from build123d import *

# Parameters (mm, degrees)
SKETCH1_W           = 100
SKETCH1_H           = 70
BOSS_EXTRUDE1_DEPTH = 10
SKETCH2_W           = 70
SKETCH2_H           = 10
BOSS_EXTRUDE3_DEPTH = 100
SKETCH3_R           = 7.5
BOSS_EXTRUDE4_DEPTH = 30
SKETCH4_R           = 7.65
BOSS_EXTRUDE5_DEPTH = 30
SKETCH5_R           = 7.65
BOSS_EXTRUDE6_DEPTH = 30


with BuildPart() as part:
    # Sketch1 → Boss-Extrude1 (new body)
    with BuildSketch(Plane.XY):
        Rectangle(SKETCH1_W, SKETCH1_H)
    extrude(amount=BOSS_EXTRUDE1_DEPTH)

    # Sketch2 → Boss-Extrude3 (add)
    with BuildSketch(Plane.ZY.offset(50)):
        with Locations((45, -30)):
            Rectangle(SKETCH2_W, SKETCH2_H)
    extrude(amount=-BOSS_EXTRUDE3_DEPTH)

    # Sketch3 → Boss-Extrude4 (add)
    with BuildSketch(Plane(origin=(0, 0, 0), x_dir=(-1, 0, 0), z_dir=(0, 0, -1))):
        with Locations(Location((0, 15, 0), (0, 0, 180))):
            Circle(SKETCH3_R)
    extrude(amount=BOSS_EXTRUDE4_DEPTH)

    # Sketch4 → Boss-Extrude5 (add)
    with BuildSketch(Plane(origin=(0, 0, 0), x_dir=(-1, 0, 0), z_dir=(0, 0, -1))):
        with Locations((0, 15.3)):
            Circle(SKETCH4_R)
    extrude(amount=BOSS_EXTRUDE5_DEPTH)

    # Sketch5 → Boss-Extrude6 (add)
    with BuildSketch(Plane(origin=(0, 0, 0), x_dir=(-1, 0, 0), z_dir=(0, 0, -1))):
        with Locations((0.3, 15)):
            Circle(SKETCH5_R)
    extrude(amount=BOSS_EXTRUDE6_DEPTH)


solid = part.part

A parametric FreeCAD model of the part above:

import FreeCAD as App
import Part
import Sketcher
Q = App.Units.Quantity


def add_polygon(sketch, points):
    """Adds a closed chain of lines whose ends are joined by coincident constraints."""
    first, n = sketch.GeometryCount, len(points)
    for a, b in zip(points, points[1:] + points[:1]):
        sketch.addGeometry(Part.LineSegment(App.Vector(*a, 0), App.Vector(*b, 0)), False)
    for i in range(n):
        sketch.addConstraint(Sketcher.Constraint("Coincident", first + i, 2, first + (i + 1) % n, 1))

doc = App.newDocument("Part")
body = doc.addObject("PartDesign::Body", "Body")

sketch1 = body.newObject("Sketcher::SketchObject", "Sketch")
sketch1.AttachmentSupport = (doc.getObject("XY_Plane"), [""])
sketch1.MapMode = "FlatFace"
add_polygon(sketch1, [(-50, 35), (-50, -35), (50, -35), (50, 35)])
sketch1.addConstraint(Sketcher.Constraint("Vertical", 0))
sketch1.addConstraint(Sketcher.Constraint("Horizontal", 1))
sketch1.addConstraint(Sketcher.Constraint("Vertical", 2))
sketch1.addConstraint(Sketcher.Constraint("Horizontal", 3))
sketch1.addConstraint(Sketcher.Constraint("Symmetric", 0, 2, 2, 2, -1, 1))
sketch1.addConstraint(Sketcher.Constraint("DistanceX", 1, 1, 1, 2, Q("100 mm")))
sketch1.addConstraint(Sketcher.Constraint("DistanceY", 0, 2, 0, 1, Q("70 mm")))
pad1 = body.newObject("PartDesign::Pad", "Pad")
pad1.Profile = sketch1
pad1.Length = 10

sketch2 = body.newObject("Sketcher::SketchObject", "Sketch001")
sketch2.AttachmentSupport = (doc.getObject("YZ_Plane"), [""])
sketch2.MapMode = "FlatFace"
sketch2.AttachmentOffset = App.Placement(App.Vector(0, 0, -50), App.Rotation())
add_polygon(sketch2, [(-25, 10), (-35, 10), (-35, 80), (-25, 80)])
sketch2.addConstraint(Sketcher.Constraint("Horizontal", 0))
sketch2.addConstraint(Sketcher.Constraint("Vertical", 1))
sketch2.addConstraint(Sketcher.Constraint("Horizontal", 2))
sketch2.addConstraint(Sketcher.Constraint("Vertical", 3))
sketch2.addConstraint(Sketcher.Constraint("DistanceX", 0, 2, 0, 1, Q("10 mm")))
sketch2.addConstraint(Sketcher.Constraint("DistanceY", 1, 1, 1, 2, Q("70 mm")))
sketch2.addConstraint(Sketcher.Constraint("DistanceX", 0, 2, -1, 1, Q("35 mm")))
sketch2.addConstraint(Sketcher.Constraint("DistanceY", -1, 1, 0, 2, Q("10 mm")))
pad2 = body.newObject("PartDesign::Pad", "Pad001")
pad2.Profile = sketch2
pad2.Length = 100

sketch3 = body.newObject("Sketcher::SketchObject", "Sketch002")
sketch3.AttachmentSupport = (doc.getObject("XY_Plane"), [""])
sketch3.MapMode = "FlatFace"
sketch3.addGeometry(Part.Circle(App.Vector(0, 15, 0), App.Vector(0, 0, 1), 8), False)
sketch3.addConstraint(Sketcher.Constraint("PointOnObject", 0, 3, -2))
sketch3.addConstraint(Sketcher.Constraint("Diameter", 0, Q("15 mm")))
sketch3.addConstraint(Sketcher.Constraint("DistanceY", -1, 1, 0, 3, Q("15 mm")))
pad3 = body.newObject("PartDesign::Pad", "Pad002")
pad3.Profile = sketch3
pad3.Length = 30
pad3.Reversed = True

sketch4 = body.newObject("Sketcher::SketchObject", "Sketch003")
sketch4.AttachmentSupport = (doc.getObject("XY_Plane"), [""])
sketch4.MapMode = "FlatFace"
sketch4.addGeometry(Part.Circle(App.Vector(0, 15, 0), App.Vector(0, 0, 1), 8), False)
sketch4.addConstraint(Sketcher.Constraint("PointOnObject", 0, 3, -2))
sketch4.addConstraint(Sketcher.Constraint("Diameter", 0, Q("15.3 mm")))
sketch4.addConstraint(Sketcher.Constraint("DistanceY", -1, 1, 0, 3, Q("15.3 mm")))
pad4 = body.newObject("PartDesign::Pad", "Pad003")
pad4.Profile = sketch4
pad4.Length = 30
pad4.Reversed = True

sketch5 = body.newObject("Sketcher::SketchObject", "Sketch004")
sketch5.AttachmentSupport = (doc.getObject("XY_Plane"), [""])
sketch5.MapMode = "FlatFace"
sketch5.addGeometry(Part.Circle(App.Vector(0, 15, 0), App.Vector(0, 0, 1), 8), False)
sketch5.addConstraint(Sketcher.Constraint("Diameter", 0, Q("15.3 mm")))
sketch5.addConstraint(Sketcher.Constraint("DistanceY", -1, 1, 0, 3, Q("15 mm")))
sketch5.addConstraint(Sketcher.Constraint("DistanceX", 0, 3, -1, 1, Q("0.3 mm")))
pad5 = body.newObject("PartDesign::Pad", "Pad004")
pad5.Profile = sketch5
pad5.Length = 30
pad5.Reversed = True

doc.recompute()
